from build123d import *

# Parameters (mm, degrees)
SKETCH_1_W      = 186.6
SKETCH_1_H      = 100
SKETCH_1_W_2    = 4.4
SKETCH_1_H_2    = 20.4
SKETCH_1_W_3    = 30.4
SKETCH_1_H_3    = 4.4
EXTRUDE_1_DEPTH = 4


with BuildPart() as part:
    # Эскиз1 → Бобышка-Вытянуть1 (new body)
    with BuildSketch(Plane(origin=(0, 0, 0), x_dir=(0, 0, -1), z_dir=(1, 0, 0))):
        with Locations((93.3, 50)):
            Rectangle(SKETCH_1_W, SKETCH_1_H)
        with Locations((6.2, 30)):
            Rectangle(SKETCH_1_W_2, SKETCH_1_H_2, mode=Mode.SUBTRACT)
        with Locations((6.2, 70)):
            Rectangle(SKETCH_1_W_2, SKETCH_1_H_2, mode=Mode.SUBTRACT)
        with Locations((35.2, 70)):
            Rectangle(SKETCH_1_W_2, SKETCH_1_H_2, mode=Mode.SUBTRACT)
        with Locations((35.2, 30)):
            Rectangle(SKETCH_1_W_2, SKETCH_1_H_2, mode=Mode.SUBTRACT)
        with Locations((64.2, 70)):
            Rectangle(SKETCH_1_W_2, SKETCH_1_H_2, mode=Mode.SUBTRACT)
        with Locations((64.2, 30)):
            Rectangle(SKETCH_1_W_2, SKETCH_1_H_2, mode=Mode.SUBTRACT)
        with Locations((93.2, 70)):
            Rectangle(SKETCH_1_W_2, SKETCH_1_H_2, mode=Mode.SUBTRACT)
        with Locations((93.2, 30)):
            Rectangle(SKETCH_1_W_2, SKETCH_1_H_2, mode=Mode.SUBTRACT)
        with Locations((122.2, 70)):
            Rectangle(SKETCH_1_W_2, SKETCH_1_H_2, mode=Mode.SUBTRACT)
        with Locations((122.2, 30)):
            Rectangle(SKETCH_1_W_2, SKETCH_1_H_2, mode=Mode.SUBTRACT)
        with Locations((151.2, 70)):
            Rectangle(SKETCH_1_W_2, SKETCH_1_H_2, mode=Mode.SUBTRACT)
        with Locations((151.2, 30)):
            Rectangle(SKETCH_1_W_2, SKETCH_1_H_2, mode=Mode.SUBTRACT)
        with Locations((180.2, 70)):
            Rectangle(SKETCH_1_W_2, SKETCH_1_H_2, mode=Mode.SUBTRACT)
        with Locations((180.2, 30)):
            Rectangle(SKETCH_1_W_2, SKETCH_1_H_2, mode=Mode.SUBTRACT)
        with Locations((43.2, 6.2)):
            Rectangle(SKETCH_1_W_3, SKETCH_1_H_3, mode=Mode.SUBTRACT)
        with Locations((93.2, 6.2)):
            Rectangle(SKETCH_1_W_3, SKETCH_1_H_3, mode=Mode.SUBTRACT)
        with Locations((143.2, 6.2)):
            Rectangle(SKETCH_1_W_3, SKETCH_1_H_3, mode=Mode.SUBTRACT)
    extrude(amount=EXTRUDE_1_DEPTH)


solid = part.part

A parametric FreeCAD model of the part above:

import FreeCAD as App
import Part
import Sketcher
from FreeCAD import Vector
Q = App.Units.Quantity


def add_polygon(sketch, points):
    """Adds a closed chain of lines whose ends are joined by coincident constraints."""
    first, n = sketch.GeometryCount, len(points)
    for a, b in zip(points, points[1:] + points[:1]):
        sketch.addGeometry(Part.LineSegment(App.Vector(*a, 0), App.Vector(*b, 0)), False)
    for i in range(n):
        sketch.addConstraint(Sketcher.Constraint("Coincident", first + i, 2, first + (i + 1) % n, 1))

doc = App.newDocument("Part")
body = doc.addObject("PartDesign::Body", "Body")

sketch1 = doc.addObject("Sketcher::SketchObject", "Sketch")
body.addObject(sketch1)
sketch1.AttachmentSupport = (doc.YZ_Plane, [""])
sketch1.MapMode = "FlatFace"
add_polygon(sketch1, [(100, 0), (0, 0), (0, -186.6), (100, -186.6)])
add_polygon(sketch1, [(4, -58.4), (4, -28), (8.4, -28), (8.4, -58.4)])
add_polygon(sketch1, [(19.8, -8.4), (19.8, -4), (40.2, -4), (40.2, -8.4)])
add_polygon(sketch1, [(19.8, -37.4), (19.8, -33), (40.2, -33), (40.2, -37.4)])
add_polygon(sketch1, [(19.8, -66.4), (19.8, -62), (40.2, -62), (40.2, -66.4)])
add_polygon(sketch1, [(4, -108.4), (4, -78), (8.4, -78), (8.4, -108.4)])
add_polygon(sketch1, [(4, -158.4), (4, -128), (8.4, -128), (8.4, -158.4)])
add_polygon(sketch1, [(19.8, -95.4), (19.8, -91), (40.2, -91), (40.2, -95.4)])
add_polygon(sketch1, [(19.8, -124.4), (19.8, -120), (40.2, -120), (40.2, -124.4)])
add_polygon(sketch1, [(19.8, -153.4), (19.8, -149), (40.2, -149), (40.2, -153.4)])
add_polygon(sketch1, [(19.8, -182.4), (19.8, -178), (40.2, -178), (40.2, -182.4)])
add_polygon(sketch1, [(59.8, -8.4), (59.8, -4), (80.2, -4), (80.2, -8.4)])
add_polygon(sketch1, [(59.8, -37.4), (59.8, -33), (80.2, -33), (80.2, -37.4)])
add_polygon(sketch1, [(59.8, -66.4), (59.8, -62), (80.2, -62), (80.2, -66.4)])
add_polygon(sketch1, [(59.8, -95.4), (59.8, -91), (80.2, -91), (80.2, -95.4)])
add_polygon(sketch1, [(59.8, -124.4), (59.8, -120), (80.2, -120), (80.2, -124.4)])
add_polygon(sketch1, [(59.8, -153.4), (59.8, -149), (80.2, -149), (80.2, -153.4)])
add_polygon(sketch1, [(59.8, -182.4), (59.8, -178), (80.2, -178), (80.2, -182.4)])
sketch1.addConstraint([
    Sketcher.Constraint("Horizontal", 0),
    Sketcher.Constraint("Vertical", 1),
    Sketcher.Constraint("Horizontal", 2),
    Sketcher.Constraint("Vertical", 3),
    Sketcher.Constraint("Vertical", 4),
    Sketcher.Constraint("Horizontal", 5),
    Sketcher.Constraint("Vertical", 6),
    Sketcher.Constraint("Horizontal", 7),
    Sketcher.Constraint("Vertical", 8),
    Sketcher.Constraint("Horizontal", 9),
    Sketcher.Constraint("Vertical", 10),
    Sketcher.Constraint("Horizontal", 11),
    Sketcher.Constraint("Vertical", 12),
    Sketcher.Constraint("Horizontal", 13),
    Sketcher.Constraint("Vertical", 14),
    Sketcher.Constraint("Horizontal", 15),
    Sketcher.Constraint("Vertical", 16),
    Sketcher.Constraint("Horizontal", 17),
    Sketcher.Constraint("Vertical", 18),
    Sketcher.Constraint("Horizontal", 19),
    Sketcher.Constraint("Vertical", 20),
    Sketcher.Constraint("Horizontal", 21),
    Sketcher.Constraint("Vertical", 22),
    Sketcher.Constraint("Horizontal", 23),
    Sketcher.Constraint("Vertical", 24),
    Sketcher.Constraint("Horizontal", 25),
    Sketcher.Constraint("Vertical", 26),
    Sketcher.Constraint("Horizontal", 27),
    Sketcher.Constraint("Vertical", 28),
    Sketcher.Constraint("Horizontal", 29),
    Sketcher.Constraint("Vertical", 30),
    Sketcher.Constraint("Horizontal", 31),
    Sketcher.Constraint("Vertical", 32),
    Sketcher.Constraint("Horizontal", 33),
    Sketcher.Constraint("Vertical", 34),
    Sketcher.Constraint("Horizontal", 35),
    Sketcher.Constraint("Vertical", 36),
    Sketcher.Constraint("Horizontal", 37),
    Sketcher.Constraint("Vertical", 38),
    Sketcher.Constraint("Horizontal", 39),
    Sketcher.Constraint("Vertical", 40),
    Sketcher.Constraint("Horizontal", 41),
    Sketcher.Constraint("Vertical", 42),
    Sketcher.Constraint("Horizontal", 43),
    Sketcher.Constraint("Vertical", 44),
    Sketcher.Constraint("Horizontal", 45),
    Sketcher.Constraint("Vertical", 46),
    Sketcher.Constraint("Horizontal", 47),
    Sketcher.Constraint("Vertical", 48),
    Sketcher.Constraint("Horizontal", 49),
    Sketcher.Constraint("Vertical", 50),
    Sketcher.Constraint("Horizontal", 51),
    Sketcher.Constraint("Vertical", 52),
    Sketcher.Constraint("Horizontal", 53),
    Sketcher.Constraint("Vertical", 54),
    Sketcher.Constraint("Horizontal", 55),
    Sketcher.Constraint("Vertical", 56),
    Sketcher.Constraint("Horizontal", 57),
    Sketcher.Constraint("Vertical", 58),
    Sketcher.Constraint("Horizontal", 59),
    Sketcher.Constraint("Vertical", 60),
    Sketcher.Constraint("Horizontal", 61),
    Sketcher.Constraint("Vertical", 62),
    Sketcher.Constraint("Horizontal", 63),
    Sketcher.Constraint("Vertical", 64),
    Sketcher.Constraint("Horizontal", 65),
    Sketcher.Constraint("Vertical", 66),
    Sketcher.Constraint("Horizontal", 67),
    Sketcher.Constraint("Vertical", 68),
    Sketcher.Constraint("Horizontal", 69),
    Sketcher.Constraint("Vertical", 70),
    Sketcher.Constraint("Horizontal", 71),
    Sketcher.Constraint("Coincident", 0, 2, -1, 1),
    Sketcher.Constraint("Horizontal", 9, 2, 44, 2),
    Sketcher.Constraint("Horizontal", 11, 2, 46, 2),
    Sketcher.Constraint("Horizontal", 13, 2, 48, 2),
    Sketcher.Constraint("Horizontal", 15, 2, 50, 2),
    Sketcher.Constraint("Horizontal", 17, 2, 52, 2),
    Sketcher.Constraint("Horizontal", 19, 2, 54, 2),
    Sketcher.Constraint("Horizontal", 29, 2, 56, 2),
    Sketcher.Constraint("Horizontal", 31, 2, 58, 2),
    Sketcher.Constraint("Horizontal", 33, 2, 60, 2),
    Sketcher.Constraint("Horizontal", 35, 2, 62, 2),
    Sketcher.Constraint("Horizontal", 37, 2, 64, 2),
    Sketcher.Constraint("Horizontal", 39, 2, 66, 2),
    Sketcher.Constraint("Horizontal", 41, 2, 68, 2),
    Sketcher.Constraint("Horizontal", 43, 2, 70, 2),
    Sketcher.Constraint("Vertical", 11, 2, 12, 2),
    Sketcher.Constraint("Vertical", 10, 2, 13, 2),
    Sketcher.Constraint("Vertical", 15, 2, 16, 2),
    Sketcher.Constraint("Vertical", 14, 2, 17, 2),
    Sketcher.Constraint("Vertical", 7, 2, 20, 2),
    Sketcher.Constraint("Vertical", 6, 2, 21, 2),
    Sketcher.Constraint("Vertical", 23, 2, 24, 2),
    Sketcher.Constraint("Vertical", 22, 2, 25, 2),
    Sketcher.Constraint("Vertical", 19, 2, 28, 2),
    Sketcher.Constraint("Vertical", 18, 2, 29, 2),
    Sketcher.Constraint("Vertical", 31, 2, 32, 2),
    Sketcher.Constraint("Vertical", 30, 2, 33, 2),
    Sketcher.Constraint("Vertical", 35, 2, 36, 2),
    Sketcher.Constraint("Vertical", 34, 2, 37, 2),
    Sketcher.Constraint("Vertical", 39, 2, 40, 2),
    Sketcher.Constraint("Vertical", 38, 2, 41, 2),
    Sketcher.Constraint("Vertical", 47, 2, 48, 2),
    Sketcher.Constraint("Vertical", 46, 2, 49, 2),
    Sketcher.Constraint("Vertical", 51, 2, 52, 2),
    Sketcher.Constraint("Vertical", 50, 2, 53, 2),
    Sketcher.Constraint("Vertical", 55, 2, 56, 2),
    Sketcher.Constraint("Vertical", 54, 2, 57, 2),
    Sketcher.Constraint("Vertical", 59, 2, 60, 2),
    Sketcher.Constraint("Vertical", 58, 2, 61, 2),
    Sketcher.Constraint("Vertical", 63, 2, 64, 2),
    Sketcher.Constraint("Vertical", 62, 2, 65, 2),
    Sketcher.Constraint("Vertical", 67, 2, 68, 2),
    Sketcher.Constraint("Vertical", 66, 2, 69, 2),
    Sketcher.Constraint("Equal", 43, 45),
    Sketcher.Constraint("Equal", 27, 8),
    Sketcher.Constraint("Equal", 10, 12),
    Sketcher.Constraint("Equal", 14, 16),
    Sketcher.Constraint("Equal", 6, 20),
    Sketcher.Constraint("Equal", 22, 24),
    Sketcher.Constraint("Equal", 18, 28),
    Sketcher.Constraint("Equal", 30, 32),
    Sketcher.Constraint("Equal", 34, 36),
    Sketcher.Constraint("Equal", 38, 40),
    Sketcher.Constraint("DistanceX", 0, 2, 0, 1, Q("100 mm")),
    Sketcher.Constraint("DistanceX", 5, 1, 5, 2, Q("4.4 mm")),
    Sketcher.Constraint("DistanceX", 9, 1, 9, 2, Q("20.4 mm")),
    Sketcher.Constraint("DistanceY", 1, 2, 1, 1, Q("186.6 mm")),
    Sketcher.Constraint("DistanceY", 4, 1, 4, 2, Q("30.4 mm")),
    Sketcher.Constraint("DistanceX", -1, 1, 4, 2, Q("4 mm")),
    Sketcher.Constraint("DistanceY", 4, 2, -1, 1, Q("28 mm")),
    Sketcher.Constraint("DistanceY", 8, 2, -1, 1, Q("4 mm")),
    Sketcher.Constraint("DistanceY", 12, 2, -1, 1, Q("33 mm")),
    Sketcher.Constraint("DistanceY", 16, 2, -1, 1, Q("62 mm")),
    Sketcher.Constraint("DistanceY", 20, 2, -1, 1, Q("78 mm")),
    Sketcher.Constraint("DistanceY", 24, 2, -1, 1, Q("128 mm")),
    Sketcher.Constraint("DistanceY", 28, 2, -1, 1, Q("91 mm")),
    Sketcher.Constraint("DistanceY", 32, 2, -1, 1, Q("120 mm")),
    Sketcher.Constraint("DistanceY", 36, 2, -1, 1, Q("149 mm")),
    Sketcher.Constraint("DistanceY", 40, 2, -1, 1, Q("178 mm")),
    Sketcher.Constraint("DistanceX", -1, 1, 8, 2, Q("19.8 mm")),
    Sketcher.Constraint("DistanceX", -1, 1, 44, 2, Q("59.8 mm")),
])
pad1 = doc.addObject("PartDesign::Pad", "Pad")
body.addObject(pad1)
pad1.Profile = sketch1
pad1.Length = 4

doc.recompute()
